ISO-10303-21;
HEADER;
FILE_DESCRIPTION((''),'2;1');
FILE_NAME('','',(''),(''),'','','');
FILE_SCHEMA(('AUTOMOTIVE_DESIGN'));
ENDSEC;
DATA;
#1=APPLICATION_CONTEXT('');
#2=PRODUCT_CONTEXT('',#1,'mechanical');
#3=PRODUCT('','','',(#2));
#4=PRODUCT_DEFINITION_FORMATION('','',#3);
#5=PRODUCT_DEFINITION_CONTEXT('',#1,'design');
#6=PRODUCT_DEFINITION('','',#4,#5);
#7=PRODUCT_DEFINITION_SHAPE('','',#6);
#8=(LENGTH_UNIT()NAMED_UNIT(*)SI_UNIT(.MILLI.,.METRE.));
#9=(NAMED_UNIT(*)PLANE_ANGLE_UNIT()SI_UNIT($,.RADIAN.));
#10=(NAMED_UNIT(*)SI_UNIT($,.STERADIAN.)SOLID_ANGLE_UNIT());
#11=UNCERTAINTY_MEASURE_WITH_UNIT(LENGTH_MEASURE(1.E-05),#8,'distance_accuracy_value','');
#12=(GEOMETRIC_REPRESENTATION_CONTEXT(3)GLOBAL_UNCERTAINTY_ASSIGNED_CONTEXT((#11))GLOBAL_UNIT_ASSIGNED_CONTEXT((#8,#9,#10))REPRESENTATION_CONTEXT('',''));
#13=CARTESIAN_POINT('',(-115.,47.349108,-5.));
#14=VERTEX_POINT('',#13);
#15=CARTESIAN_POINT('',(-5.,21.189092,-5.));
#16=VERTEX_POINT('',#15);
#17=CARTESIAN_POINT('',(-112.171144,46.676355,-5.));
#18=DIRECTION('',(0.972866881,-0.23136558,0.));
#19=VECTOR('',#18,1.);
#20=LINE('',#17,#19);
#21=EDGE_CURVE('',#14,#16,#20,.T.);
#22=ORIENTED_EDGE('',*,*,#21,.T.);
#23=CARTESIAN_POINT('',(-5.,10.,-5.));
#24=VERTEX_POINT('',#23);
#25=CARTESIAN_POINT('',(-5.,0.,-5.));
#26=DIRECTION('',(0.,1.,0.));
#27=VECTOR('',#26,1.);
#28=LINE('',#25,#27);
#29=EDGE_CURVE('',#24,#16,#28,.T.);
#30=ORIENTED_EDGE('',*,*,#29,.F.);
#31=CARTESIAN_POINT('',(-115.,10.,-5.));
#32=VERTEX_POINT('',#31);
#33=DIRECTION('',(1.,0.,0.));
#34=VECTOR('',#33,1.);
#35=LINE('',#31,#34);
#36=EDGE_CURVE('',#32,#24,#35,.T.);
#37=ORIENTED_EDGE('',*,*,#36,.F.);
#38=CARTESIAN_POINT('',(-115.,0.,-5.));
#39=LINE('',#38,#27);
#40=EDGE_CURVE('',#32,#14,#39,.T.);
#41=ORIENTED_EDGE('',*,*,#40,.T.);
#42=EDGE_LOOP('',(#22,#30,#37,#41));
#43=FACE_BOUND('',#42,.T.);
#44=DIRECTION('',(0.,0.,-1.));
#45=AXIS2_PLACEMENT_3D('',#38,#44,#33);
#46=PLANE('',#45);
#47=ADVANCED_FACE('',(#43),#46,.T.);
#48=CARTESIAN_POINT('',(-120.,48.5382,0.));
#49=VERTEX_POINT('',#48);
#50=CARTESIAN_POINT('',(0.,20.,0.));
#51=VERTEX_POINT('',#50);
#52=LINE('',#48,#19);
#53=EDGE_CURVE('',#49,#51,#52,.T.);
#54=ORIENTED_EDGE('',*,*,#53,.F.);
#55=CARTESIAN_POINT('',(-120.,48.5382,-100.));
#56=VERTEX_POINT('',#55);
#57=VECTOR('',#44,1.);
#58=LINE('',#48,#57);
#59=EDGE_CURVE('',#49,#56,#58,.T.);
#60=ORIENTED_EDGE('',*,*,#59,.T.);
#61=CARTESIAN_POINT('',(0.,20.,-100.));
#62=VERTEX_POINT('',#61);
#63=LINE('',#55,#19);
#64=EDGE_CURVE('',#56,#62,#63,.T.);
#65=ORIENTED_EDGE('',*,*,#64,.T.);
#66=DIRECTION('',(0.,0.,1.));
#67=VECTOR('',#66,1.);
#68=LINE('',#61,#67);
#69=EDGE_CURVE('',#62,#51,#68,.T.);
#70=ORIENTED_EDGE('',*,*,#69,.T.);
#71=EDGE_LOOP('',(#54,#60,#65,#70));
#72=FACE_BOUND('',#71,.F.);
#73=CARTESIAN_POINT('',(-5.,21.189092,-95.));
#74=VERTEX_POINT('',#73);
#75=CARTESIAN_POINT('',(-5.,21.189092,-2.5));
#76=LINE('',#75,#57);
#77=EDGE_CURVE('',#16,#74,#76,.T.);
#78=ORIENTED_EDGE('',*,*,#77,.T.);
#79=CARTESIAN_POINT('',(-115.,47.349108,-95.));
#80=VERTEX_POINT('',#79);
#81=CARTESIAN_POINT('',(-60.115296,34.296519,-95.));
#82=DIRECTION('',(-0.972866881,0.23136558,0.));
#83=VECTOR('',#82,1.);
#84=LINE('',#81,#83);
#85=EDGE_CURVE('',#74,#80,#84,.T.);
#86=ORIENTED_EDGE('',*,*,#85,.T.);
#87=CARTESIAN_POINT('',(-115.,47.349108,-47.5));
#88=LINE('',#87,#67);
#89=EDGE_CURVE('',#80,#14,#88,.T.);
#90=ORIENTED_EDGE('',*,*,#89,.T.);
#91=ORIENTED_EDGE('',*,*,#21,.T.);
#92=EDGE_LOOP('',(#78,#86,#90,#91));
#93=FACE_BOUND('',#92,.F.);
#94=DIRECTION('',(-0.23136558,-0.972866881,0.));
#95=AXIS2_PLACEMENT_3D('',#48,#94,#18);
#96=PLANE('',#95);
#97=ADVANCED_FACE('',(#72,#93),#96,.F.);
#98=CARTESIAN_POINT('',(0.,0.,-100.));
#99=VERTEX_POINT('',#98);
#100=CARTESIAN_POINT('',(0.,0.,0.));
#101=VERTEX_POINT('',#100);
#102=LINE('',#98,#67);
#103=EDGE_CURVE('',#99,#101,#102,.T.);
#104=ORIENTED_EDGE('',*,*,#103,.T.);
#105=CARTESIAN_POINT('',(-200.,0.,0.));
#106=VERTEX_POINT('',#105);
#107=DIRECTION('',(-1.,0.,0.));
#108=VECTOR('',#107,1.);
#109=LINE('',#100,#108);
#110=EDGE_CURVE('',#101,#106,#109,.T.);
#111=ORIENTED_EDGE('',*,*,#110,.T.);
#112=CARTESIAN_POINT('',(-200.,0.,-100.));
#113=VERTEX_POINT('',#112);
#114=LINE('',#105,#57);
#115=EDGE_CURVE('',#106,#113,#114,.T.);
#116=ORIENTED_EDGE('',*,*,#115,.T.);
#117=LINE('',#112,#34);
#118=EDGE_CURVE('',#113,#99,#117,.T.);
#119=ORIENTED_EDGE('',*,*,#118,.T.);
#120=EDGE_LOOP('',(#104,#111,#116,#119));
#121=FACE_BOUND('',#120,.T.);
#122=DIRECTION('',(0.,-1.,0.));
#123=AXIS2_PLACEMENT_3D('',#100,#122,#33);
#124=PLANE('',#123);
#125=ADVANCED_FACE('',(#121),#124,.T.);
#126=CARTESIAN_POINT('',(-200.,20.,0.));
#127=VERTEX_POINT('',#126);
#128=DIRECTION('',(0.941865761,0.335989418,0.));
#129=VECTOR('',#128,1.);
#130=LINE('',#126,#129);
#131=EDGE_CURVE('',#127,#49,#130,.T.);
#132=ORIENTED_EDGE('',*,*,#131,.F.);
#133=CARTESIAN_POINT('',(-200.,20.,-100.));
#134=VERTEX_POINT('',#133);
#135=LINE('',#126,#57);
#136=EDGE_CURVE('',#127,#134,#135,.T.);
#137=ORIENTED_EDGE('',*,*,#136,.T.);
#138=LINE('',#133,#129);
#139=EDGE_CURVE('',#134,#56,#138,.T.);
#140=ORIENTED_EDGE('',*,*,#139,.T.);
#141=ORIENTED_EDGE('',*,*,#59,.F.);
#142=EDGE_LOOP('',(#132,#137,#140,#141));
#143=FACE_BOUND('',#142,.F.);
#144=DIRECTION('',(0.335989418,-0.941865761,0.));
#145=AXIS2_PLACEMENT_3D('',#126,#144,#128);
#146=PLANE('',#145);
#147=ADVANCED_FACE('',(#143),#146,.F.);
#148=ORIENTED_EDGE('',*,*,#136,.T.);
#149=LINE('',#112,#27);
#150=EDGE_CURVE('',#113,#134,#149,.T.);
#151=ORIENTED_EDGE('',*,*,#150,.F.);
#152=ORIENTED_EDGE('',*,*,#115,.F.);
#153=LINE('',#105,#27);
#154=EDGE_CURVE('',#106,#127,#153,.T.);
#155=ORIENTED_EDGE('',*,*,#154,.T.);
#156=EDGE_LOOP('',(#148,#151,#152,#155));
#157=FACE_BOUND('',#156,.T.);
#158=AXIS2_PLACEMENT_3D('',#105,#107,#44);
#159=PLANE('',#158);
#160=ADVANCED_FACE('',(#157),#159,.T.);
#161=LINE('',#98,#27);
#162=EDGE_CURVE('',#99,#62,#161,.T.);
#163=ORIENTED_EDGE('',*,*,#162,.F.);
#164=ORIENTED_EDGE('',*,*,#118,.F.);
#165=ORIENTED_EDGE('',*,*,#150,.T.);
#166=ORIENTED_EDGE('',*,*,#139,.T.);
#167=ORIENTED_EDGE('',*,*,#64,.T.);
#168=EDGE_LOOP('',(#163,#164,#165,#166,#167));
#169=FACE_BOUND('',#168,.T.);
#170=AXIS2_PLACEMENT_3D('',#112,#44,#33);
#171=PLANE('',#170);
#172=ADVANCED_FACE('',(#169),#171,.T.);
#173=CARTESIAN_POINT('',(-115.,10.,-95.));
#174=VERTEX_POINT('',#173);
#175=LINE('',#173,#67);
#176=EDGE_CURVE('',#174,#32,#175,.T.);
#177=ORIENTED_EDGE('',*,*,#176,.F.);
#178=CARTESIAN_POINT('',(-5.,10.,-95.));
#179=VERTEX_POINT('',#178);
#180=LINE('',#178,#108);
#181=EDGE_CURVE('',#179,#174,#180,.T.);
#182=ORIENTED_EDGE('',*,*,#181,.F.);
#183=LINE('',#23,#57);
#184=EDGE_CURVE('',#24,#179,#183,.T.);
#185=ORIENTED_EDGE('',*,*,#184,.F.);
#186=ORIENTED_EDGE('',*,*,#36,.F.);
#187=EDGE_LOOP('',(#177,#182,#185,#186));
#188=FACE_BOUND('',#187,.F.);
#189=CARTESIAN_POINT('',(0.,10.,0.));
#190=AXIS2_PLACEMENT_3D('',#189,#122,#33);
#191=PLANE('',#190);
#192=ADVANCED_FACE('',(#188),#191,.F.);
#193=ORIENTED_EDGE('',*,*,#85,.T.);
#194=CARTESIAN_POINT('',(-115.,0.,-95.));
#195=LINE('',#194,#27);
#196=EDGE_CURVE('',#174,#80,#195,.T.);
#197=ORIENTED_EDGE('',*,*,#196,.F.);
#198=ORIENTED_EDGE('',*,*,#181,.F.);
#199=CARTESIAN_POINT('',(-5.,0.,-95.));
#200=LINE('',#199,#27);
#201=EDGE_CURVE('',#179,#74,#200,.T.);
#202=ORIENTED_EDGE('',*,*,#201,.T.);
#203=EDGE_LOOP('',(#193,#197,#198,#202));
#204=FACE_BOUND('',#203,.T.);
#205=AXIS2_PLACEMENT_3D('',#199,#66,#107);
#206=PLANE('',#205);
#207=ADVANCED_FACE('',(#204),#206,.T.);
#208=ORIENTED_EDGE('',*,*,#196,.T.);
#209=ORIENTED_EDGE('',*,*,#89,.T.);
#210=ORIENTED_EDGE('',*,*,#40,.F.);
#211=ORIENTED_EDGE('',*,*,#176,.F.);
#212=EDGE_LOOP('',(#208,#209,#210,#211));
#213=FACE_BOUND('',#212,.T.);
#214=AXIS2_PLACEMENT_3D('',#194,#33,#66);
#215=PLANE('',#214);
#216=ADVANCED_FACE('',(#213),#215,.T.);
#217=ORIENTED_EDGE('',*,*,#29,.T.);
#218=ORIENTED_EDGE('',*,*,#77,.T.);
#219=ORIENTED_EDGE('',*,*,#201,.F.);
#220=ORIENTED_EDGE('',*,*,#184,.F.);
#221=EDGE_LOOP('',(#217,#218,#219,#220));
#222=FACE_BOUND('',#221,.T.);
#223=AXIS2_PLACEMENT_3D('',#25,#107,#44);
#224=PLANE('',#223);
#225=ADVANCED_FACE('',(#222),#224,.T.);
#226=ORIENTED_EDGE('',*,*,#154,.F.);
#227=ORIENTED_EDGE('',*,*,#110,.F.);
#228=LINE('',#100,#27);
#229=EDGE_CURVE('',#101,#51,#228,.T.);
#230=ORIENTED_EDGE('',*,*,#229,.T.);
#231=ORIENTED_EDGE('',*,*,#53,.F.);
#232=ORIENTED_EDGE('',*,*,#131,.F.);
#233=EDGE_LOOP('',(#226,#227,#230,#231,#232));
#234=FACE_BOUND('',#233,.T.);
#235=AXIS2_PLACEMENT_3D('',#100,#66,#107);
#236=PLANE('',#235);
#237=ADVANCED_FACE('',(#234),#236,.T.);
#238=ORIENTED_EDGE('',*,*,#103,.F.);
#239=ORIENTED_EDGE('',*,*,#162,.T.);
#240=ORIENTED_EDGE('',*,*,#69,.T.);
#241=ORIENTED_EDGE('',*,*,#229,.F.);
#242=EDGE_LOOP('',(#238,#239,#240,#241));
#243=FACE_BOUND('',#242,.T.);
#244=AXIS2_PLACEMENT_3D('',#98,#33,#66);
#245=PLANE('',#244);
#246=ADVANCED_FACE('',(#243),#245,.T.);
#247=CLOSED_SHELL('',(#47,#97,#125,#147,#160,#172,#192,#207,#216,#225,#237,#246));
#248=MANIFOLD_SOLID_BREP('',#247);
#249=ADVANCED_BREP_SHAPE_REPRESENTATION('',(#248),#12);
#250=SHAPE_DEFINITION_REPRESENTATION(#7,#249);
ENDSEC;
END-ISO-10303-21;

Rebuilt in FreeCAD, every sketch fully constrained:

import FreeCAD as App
import Part
import Sketcher

V = App.Vector
Q = App.Units.Quantity


def add_polygon(sketch, points):
    """Adds a closed chain of lines whose ends are joined by coincident constraints."""
    first, n = sketch.GeometryCount, len(points)
    for a, b in zip(points, points[1:] + points[:1]):
        sketch.addGeometry(Part.LineSegment(App.Vector(*a, 0), App.Vector(*b, 0)), False)
    for i in range(n):
        sketch.addConstraint(Sketcher.Constraint("Coincident", first + i, 2, first + (i + 1) % n, 1))

doc = App.newDocument("Part")
body = doc.addObject("PartDesign::Body", "Body")

# Sketch on XZ plane
sketch1 = doc.addObject("Sketcher::SketchObject", "Sketch")
body.addObject(sketch1)
sketch1.AttachmentSupport = (doc.XZ_Plane, [""])
sketch1.MapMode = "FlatFace"
add_polygon(sketch1, [(-200, 0), (0, 0), (0, -100), (-200, -100)])  # lines 0-3
sketch1.addConstraint(Sketcher.Constraint("Horizontal", 0))
sketch1.addConstraint(Sketcher.Constraint("Vertical", 1))
sketch1.addConstraint(Sketcher.Constraint("Horizontal", 2))
sketch1.addConstraint(Sketcher.Constraint("Vertical", 3))
sketch1.addConstraint(Sketcher.Constraint("Coincident", 0, 2, -1, 1))
sketch1.addConstraint(Sketcher.Constraint("DistanceY", 1, 2, 1, 1, Q("3.937 in")))
sketch1.addConstraint(Sketcher.Constraint("DistanceX", 0, 1, 0, 2, 200.0))
pad1 = doc.addObject("PartDesign::Pad", "Pad")
body.addObject(pad1)
pad1.Profile = sketch1
pad1.Length = Q("0.7874016 in")
pad1.Reversed = True

# Sketch on XY plane
sketch2 = doc.addObject("Sketcher::SketchObject", "Sketch001")
body.addObject(sketch2)
sketch2.AttachmentSupport = (doc.XY_Plane, [""])
sketch2.MapMode = "FlatFace"
add_polygon(sketch2, [(-200, 20), (0, 20), (-120, 49)])  # lines 0-2
sketch2.addConstraint(Sketcher.Constraint("Horizontal", 0))
sketch2.addConstraint(Sketcher.Constraint("PointOnObject", 0, 2, -2))
sketch2.addConstraint(Sketcher.Constraint("Distance", 2, Q("3.344 in")))
sketch2.addConstraint(Sketcher.Constraint("DistanceX", 0, 1, 0, 2, 200.0))
sketch2.addConstraint(Sketcher.Constraint("DistanceY", -1, 1, 0, 2, Q("0.7874 in")))
sketch2.addConstraint(Sketcher.Constraint("DistanceX", 1, 2, -1, 1, Q("4.7244 in")))
pad2 = doc.addObject("PartDesign::Pad", "Pad001")
body.addObject(pad2)
pad2.Profile = sketch2
pad2.Length = Q("3.9370079 in")
pad2.Reversed = True

# Sketch on XZ plane
sketch3 = doc.addObject("Sketcher::SketchObject", "Sketch002")
body.addObject(sketch3)
sketch3.AttachmentSupport = (doc.XZ_Plane, [""])
sketch3.MapMode = "FlatFace"
add_polygon(sketch3, [(-5, -95), (-5, -5), (-115, -5), (-115, -95)])  # lines 0-3
sketch3.addConstraint(Sketcher.Constraint("Vertical", 0))
sketch3.addConstraint(Sketcher.Constraint("Horizontal", 1))
sketch3.addConstraint(Sketcher.Constraint("Vertical", 2))
sketch3.addConstraint(Sketcher.Constraint("Horizontal", 3))
sketch3.addConstraint(Sketcher.Constraint("DistanceX", 0, 2, -1, 1, 5.0))
sketch3.addConstraint(Sketcher.Constraint("DistanceY", 0, 2, -1, 1, 5.0))
sketch3.addConstraint(Sketcher.Constraint("DistanceX", 1, 2, 1, 1, Q("4.3307 in")))
sketch3.addConstraint(Sketcher.Constraint("DistanceY", 0, 1, 0, 2, Q("3.5433 in")))
pocket1 = doc.addObject("PartDesign::Pocket", "Pocket")
body.addObject(pocket1)
pocket1.Profile = sketch3
pocket1.Length = Q("2.7066929 in")

# Sketch on XZ plane
sketch4 = doc.addObject("Sketcher::SketchObject", "Sketch003")
body.addObject(sketch4)
sketch4.AttachmentSupport = (doc.XZ_Plane, [""])
sketch4.MapMode = "FlatFace"
add_polygon(sketch4, [(-5, -95), (-5, -5), (-115, -5), (-115, -95)])  # lines 0-3
sketch4.addConstraint(Sketcher.Constraint("Vertical", 0))
sketch4.addConstraint(Sketcher.Constraint("Horizontal", 1))
sketch4.addConstraint(Sketcher.Constraint("Vertical", 2))
sketch4.addConstraint(Sketcher.Constraint("Horizontal", 3))
sketch4.addConstraint(Sketcher.Constraint("DistanceX", 0, 2, -1, 1, 5.0))
sketch4.addConstraint(Sketcher.Constraint("DistanceY", 0, 2, -1, 1, 5.0))
sketch4.addConstraint(Sketcher.Constraint("DistanceX", 1, 2, 1, 1, Q("4.3307 in")))
sketch4.addConstraint(Sketcher.Constraint("DistanceY", 0, 1, 0, 2, Q("3.5433 in")))
pad3 = doc.addObject("PartDesign::Pad", "Pad002")
body.addObject(pad3)
pad3.Profile = sketch4
pad3.Length = Q("0.3937008 in")
pad3.Reversed = True

doc.recompute()
